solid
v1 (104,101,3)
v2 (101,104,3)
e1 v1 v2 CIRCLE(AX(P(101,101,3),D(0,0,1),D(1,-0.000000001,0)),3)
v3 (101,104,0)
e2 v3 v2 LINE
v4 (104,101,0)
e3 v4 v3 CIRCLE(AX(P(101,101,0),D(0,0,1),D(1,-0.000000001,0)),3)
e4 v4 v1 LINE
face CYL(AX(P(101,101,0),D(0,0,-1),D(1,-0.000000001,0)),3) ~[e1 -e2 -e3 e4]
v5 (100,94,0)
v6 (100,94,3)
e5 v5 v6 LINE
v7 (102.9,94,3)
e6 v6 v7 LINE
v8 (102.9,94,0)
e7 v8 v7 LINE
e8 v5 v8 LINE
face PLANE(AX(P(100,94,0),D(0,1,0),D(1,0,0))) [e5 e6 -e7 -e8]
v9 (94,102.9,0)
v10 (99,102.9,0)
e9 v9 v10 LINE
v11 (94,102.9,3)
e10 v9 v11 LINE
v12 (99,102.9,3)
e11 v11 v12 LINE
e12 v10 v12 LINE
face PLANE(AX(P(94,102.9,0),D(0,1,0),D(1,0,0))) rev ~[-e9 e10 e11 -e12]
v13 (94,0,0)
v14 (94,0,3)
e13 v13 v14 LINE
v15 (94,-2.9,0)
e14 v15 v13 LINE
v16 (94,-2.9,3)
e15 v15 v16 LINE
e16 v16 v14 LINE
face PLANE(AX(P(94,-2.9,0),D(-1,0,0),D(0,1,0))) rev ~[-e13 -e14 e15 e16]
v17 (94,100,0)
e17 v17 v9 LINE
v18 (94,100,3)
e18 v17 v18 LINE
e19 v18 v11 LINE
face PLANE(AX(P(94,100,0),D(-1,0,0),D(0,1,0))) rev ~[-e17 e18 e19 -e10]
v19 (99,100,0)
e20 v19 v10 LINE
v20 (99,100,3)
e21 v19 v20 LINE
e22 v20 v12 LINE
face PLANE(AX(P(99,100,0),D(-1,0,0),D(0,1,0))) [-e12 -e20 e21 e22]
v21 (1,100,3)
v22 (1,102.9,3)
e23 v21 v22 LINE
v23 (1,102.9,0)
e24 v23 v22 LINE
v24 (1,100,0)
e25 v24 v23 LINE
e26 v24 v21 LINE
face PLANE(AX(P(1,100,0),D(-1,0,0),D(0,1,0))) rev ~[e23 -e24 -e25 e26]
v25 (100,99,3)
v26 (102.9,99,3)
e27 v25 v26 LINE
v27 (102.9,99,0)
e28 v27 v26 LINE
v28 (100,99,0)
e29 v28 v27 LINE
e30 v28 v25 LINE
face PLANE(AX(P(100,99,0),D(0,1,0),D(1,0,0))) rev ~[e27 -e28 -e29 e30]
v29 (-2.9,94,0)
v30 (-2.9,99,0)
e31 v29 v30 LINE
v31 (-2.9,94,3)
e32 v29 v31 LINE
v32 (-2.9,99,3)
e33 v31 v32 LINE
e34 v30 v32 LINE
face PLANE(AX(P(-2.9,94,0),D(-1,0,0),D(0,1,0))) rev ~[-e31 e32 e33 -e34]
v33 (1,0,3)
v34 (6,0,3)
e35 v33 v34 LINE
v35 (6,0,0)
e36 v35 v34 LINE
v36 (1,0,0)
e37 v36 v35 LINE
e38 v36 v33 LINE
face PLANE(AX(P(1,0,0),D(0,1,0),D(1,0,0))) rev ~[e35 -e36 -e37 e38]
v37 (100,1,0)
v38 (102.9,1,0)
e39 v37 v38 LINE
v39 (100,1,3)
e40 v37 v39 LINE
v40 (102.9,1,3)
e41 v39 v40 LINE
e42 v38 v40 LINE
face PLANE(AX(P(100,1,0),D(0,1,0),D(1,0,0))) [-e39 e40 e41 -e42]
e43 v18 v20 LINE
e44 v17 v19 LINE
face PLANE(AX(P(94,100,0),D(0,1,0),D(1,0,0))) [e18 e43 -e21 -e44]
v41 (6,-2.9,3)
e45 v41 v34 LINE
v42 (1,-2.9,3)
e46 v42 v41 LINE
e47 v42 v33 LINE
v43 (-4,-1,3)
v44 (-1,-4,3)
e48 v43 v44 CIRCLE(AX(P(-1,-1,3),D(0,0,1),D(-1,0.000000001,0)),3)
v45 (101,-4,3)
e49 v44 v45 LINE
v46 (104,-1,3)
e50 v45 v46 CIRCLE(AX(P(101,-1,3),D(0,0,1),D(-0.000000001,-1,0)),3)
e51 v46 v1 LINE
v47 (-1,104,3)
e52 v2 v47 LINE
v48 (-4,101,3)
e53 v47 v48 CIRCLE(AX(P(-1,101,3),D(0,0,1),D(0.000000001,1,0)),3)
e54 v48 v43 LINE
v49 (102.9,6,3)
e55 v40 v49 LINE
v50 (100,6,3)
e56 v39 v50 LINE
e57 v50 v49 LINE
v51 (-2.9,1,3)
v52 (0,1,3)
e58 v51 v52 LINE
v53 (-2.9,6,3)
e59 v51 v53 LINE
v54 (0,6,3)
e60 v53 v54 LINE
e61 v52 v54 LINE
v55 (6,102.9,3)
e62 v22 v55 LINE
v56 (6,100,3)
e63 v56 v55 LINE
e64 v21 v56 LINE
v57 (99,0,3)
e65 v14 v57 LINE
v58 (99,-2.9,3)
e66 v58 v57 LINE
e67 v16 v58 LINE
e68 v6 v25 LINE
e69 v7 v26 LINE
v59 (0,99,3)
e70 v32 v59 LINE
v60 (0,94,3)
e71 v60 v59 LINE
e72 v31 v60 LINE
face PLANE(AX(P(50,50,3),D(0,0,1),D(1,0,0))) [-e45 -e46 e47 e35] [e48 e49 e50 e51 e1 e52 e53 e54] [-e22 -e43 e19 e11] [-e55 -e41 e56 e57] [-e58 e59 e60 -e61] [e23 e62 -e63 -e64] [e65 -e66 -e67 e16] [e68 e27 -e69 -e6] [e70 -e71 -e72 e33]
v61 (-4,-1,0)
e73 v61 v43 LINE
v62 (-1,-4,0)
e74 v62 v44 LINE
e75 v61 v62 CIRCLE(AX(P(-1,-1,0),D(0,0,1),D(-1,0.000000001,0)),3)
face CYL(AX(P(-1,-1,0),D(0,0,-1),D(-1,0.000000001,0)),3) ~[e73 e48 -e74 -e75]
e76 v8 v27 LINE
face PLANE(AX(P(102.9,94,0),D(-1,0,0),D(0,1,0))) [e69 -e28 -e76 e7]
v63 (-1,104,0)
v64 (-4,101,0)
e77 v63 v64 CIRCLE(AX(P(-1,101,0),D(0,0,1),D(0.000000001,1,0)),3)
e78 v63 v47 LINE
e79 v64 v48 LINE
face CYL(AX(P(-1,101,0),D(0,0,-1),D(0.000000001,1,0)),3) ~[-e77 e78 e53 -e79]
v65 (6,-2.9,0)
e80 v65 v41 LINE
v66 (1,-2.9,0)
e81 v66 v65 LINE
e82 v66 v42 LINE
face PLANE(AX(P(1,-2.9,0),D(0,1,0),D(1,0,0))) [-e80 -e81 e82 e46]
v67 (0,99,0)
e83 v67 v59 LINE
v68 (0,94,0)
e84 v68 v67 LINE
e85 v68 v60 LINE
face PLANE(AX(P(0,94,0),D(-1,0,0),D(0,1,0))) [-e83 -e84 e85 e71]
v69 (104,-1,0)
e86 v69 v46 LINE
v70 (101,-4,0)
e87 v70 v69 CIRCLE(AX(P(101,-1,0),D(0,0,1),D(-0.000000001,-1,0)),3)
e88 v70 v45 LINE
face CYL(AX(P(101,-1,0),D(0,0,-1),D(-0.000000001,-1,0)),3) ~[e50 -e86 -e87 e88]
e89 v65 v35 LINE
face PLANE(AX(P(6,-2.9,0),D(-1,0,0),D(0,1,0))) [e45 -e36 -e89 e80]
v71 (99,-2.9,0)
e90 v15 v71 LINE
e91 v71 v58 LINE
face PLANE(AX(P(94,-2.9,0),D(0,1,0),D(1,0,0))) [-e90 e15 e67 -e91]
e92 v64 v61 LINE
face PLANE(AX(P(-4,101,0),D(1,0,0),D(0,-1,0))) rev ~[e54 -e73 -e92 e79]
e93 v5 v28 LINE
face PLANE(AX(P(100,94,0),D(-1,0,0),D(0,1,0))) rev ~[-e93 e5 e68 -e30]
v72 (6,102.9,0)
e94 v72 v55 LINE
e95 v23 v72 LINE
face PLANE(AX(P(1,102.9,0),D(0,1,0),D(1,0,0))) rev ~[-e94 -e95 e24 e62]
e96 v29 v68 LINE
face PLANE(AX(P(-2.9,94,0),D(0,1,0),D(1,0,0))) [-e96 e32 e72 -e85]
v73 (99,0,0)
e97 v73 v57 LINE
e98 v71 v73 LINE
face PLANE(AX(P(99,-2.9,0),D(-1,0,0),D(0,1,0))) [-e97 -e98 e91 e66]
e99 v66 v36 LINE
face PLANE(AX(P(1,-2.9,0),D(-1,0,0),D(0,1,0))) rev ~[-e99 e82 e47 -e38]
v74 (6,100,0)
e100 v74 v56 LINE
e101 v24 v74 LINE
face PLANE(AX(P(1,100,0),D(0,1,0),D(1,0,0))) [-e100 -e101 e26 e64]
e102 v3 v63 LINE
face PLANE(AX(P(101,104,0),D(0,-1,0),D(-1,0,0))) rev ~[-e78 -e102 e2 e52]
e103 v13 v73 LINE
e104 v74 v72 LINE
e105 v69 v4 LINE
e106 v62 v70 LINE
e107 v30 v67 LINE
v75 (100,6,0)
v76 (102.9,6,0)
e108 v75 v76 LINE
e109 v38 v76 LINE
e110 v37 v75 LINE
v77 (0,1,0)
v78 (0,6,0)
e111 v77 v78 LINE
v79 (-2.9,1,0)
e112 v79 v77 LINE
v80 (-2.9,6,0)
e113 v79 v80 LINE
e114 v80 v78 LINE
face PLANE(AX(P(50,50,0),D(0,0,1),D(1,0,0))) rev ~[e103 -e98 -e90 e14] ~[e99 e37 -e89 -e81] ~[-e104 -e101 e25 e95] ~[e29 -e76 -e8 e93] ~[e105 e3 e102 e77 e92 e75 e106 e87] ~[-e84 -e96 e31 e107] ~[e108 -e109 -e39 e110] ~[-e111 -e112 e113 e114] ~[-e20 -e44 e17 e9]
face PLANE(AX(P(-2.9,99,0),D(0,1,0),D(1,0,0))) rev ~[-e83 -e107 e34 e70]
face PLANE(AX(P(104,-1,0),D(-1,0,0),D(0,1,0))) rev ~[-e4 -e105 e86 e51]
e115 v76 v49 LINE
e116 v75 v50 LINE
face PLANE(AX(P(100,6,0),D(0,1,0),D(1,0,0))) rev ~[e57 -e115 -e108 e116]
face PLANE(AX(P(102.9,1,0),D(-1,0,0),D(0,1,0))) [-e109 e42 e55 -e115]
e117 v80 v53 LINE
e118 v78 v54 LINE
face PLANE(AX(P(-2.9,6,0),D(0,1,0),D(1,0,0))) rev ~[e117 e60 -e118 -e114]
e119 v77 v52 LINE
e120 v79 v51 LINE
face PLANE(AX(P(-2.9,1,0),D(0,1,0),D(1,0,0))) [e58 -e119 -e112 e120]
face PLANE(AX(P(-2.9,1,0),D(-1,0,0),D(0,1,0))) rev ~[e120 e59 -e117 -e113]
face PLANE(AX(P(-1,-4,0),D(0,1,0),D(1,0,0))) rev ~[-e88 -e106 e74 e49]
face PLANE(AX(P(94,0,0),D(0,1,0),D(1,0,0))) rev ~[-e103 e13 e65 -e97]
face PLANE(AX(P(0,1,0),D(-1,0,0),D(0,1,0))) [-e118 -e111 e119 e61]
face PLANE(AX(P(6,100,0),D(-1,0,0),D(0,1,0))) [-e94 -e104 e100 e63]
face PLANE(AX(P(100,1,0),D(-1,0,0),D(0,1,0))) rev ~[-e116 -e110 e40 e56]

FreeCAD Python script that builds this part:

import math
import FreeCAD as App
import Part
import Sketcher
from FreeCAD import Vector


def add_polygon(sketch, points):
    """Adds a closed chain of lines whose ends are joined by coincident constraints."""
    first, n = sketch.GeometryCount, len(points)
    for a, b in zip(points, points[1:] + points[:1]):
        sketch.addGeometry(Part.LineSegment(App.Vector(*a, 0), App.Vector(*b, 0)), False)
    for i in range(n):
        sketch.addConstraint(Sketcher.Constraint("Coincident", first + i, 2, first + (i + 1) % n, 1))

doc = App.newDocument("Part")
params = doc.addObject("Spreadsheet::Sheet", "Params")
for row, (alias, value) in enumerate([
    ("sketch1_radius", "3 mm"),
    ("sketch1_width", "102 mm"),
    ("sketch1_width2", "5 mm"),
    ("sketch1_width3", "2.9 mm"),
    ("pad1_length", "3 mm"),
], start=1):
    params.set(f"A{row}", alias)
    params.set(f"B{row}", "=" + value)
    params.setAlias(f"B{row}", alias)

body = doc.addObject("PartDesign::Body", "Body")

sketch1 = body.newObject("Sketcher::SketchObject", "Sketch")
sketch1.AttachmentSupport = (doc.getObject("XY_Plane"), [""])
sketch1.MapMode = "FlatFace"
sketch1.addGeometry(Part.LineSegment(Vector(101, 104, 0), Vector(-1, 104, 0)), False)
sketch1.addGeometry(Part.ArcOfCircle(Part.Circle(Vector(-1, 101, 0), Vector(0, 0, 1), 3), math.radians(90), math.radians(180)), False)
sketch1.addGeometry(Part.LineSegment(Vector(-4, 101, 0), Vector(-4, -1, 0)), False)
sketch1.addGeometry(Part.ArcOfCircle(Part.Circle(Vector(-1, -1, 0), Vector(0, 0, 1), 3), math.radians(180), math.radians(270)), False)
sketch1.addGeometry(Part.LineSegment(Vector(-1, -4, 0), Vector(101, -4, 0)), False)
sketch1.addGeometry(Part.ArcOfCircle(Part.Circle(Vector(101, -1, 0), Vector(0, 0, 1), 3), math.radians(-90), math.radians(0)), False)
sketch1.addGeometry(Part.LineSegment(Vector(104, -1, 0), Vector(104, 101, 0)), False)
sketch1.addGeometry(Part.ArcOfCircle(Part.Circle(Vector(101, 101, 0), Vector(0, 0, 1), 3), math.radians(0), math.radians(90)), False)
add_polygon(sketch1, [(6, -2.9), (1, -2.9), (1, 0), (6, 0)])
add_polygon(sketch1, [(0, 1), (-2.9, 1), (-2.9, 6), (0, 6)])
add_polygon(sketch1, [(99, -2.9), (94, -2.9), (94, 0), (99, 0)])
add_polygon(sketch1, [(102.9, 1), (100, 1), (100, 6), (102.9, 6)])
add_polygon(sketch1, [(0, 94), (-2.9, 94), (-2.9, 99), (0, 99)])
add_polygon(sketch1, [(6, 100), (1, 100), (1, 102.9), (6, 102.9)])
add_polygon(sketch1, [(102.9, 94), (100, 94), (100, 99), (102.9, 99)])
add_polygon(sketch1, [(99, 100), (94, 100), (94, 102.9), (99, 102.9)])
sketch1.addConstraint([
    Sketcher.Constraint("Tangent", 0, 2, 1, 1),
    Sketcher.Constraint("Tangent", 1, 2, 2, 1),
    Sketcher.Constraint("Tangent", 2, 2, 3, 1),
    Sketcher.Constraint("Tangent", 3, 2, 4, 1),
    Sketcher.Constraint("Tangent", 4, 2, 5, 1),
    Sketcher.Constraint("Tangent", 5, 2, 6, 1),
    Sketcher.Constraint("Tangent", 6, 2, 7, 1),
    Sketcher.Constraint("Tangent", 7, 2, 0, 1),
    Sketcher.Constraint("Horizontal", 0),
    Sketcher.Constraint("Vertical", 2),
    Sketcher.Constraint("Horizontal", 4),
    Sketcher.Constraint("Vertical", 6),
    Sketcher.Constraint("Horizontal", 8),
    Sketcher.Constraint("Vertical", 9),
    Sketcher.Constraint("Horizontal", 10),
    Sketcher.Constraint("Vertical", 11),
    Sketcher.Constraint("Horizontal", 12),
    Sketcher.Constraint("Vertical", 13),
    Sketcher.Constraint("Horizontal", 14),
    Sketcher.Constraint("Vertical", 15),
    Sketcher.Constraint("Horizontal", 16),
    Sketcher.Constraint("Vertical", 17),
    Sketcher.Constraint("Horizontal", 18),
    Sketcher.Constraint("Vertical", 19),
    Sketcher.Constraint("Horizontal", 20),
    Sketcher.Constraint("Vertical", 21),
    Sketcher.Constraint("Horizontal", 22),
    Sketcher.Constraint("Vertical", 23),
    Sketcher.Constraint("Horizontal", 24),
    Sketcher.Constraint("Vertical", 25),
    Sketcher.Constraint("Horizontal", 26),
    Sketcher.Constraint("Vertical", 27),
    Sketcher.Constraint("Horizontal", 28),
    Sketcher.Constraint("Vertical", 29),
    Sketcher.Constraint("Horizontal", 30),
    Sketcher.Constraint("Vertical", 31),
    Sketcher.Constraint("Horizontal", 32),
    Sketcher.Constraint("Vertical", 33),
    Sketcher.Constraint("Horizontal", 34),
    Sketcher.Constraint("Vertical", 35),
    Sketcher.Constraint("Horizontal", 36),
    Sketcher.Constraint("Vertical", 37),
    Sketcher.Constraint("Horizontal", 38),
    Sketcher.Constraint("Vertical", 39),
    Sketcher.Constraint("Equal", 1, 3),
    Sketcher.Constraint("Equal", 3, 5),
    Sketcher.Constraint("Equal", 5, 7),
    Sketcher.Constraint("PointOnObject", 9, 2, -1),
    Sketcher.Constraint("PointOnObject", 14, 2, -2),
    Sketcher.Constraint("PointOnObject", 17, 2, -1),
    Sketcher.Constraint("PointOnObject", 26, 2, -2),
    Sketcher.Constraint("Horizontal", 11, 2, 16, 2),
    Sketcher.Constraint("Horizontal", 15, 2, 20, 2),
    Sketcher.Constraint("Horizontal", 14, 2, 21, 2),
    Sketcher.Constraint("Horizontal", 27, 2, 32, 2),
    Sketcher.Constraint("Horizontal", 26, 2, 33, 2),
    Sketcher.Constraint("Horizontal", 31, 2, 36, 2),
    Sketcher.Constraint("Horizontal", 30, 2, 37, 2),
    Sketcher.Constraint("Vertical", 13, 2, 24, 2),
    Sketcher.Constraint("Vertical", 9, 2, 28, 2),
    Sketcher.Constraint("Vertical", 11, 2, 30, 2),
    Sketcher.Constraint("Vertical", 21, 2, 32, 2),
    Sketcher.Constraint("Vertical", 23, 2, 34, 2),
    Sketcher.Constraint("Vertical", 17, 2, 36, 2),
    Sketcher.Constraint("Vertical", 19, 2, 38, 2),
    Sketcher.Constraint("Equal", 10, 16),
    Sketcher.Constraint("Equal", 14, 20),
    Sketcher.Constraint("Equal", 4, 2),
    Sketcher.Constraint("Equal", 34, 9),
    Sketcher.Constraint("Equal", 38, 13),
    Sketcher.Constraint("Equal", 23, 25),
    Sketcher.Constraint("Equal", 19, 29),
    Sketcher.Constraint("Radius", 1, 3.0),
    Sketcher.Constraint("DistanceX", 0, 2, 0, 1, 102.0),
    Sketcher.Constraint("DistanceX", 8, 2, 8, 1, 5.0),
    Sketcher.Constraint("DistanceX", 12, 2, 12, 1, 2.9),
    Sketcher.Constraint("DistanceX", 1, 3, -1, 1, 1.0),
    Sketcher.Constraint("DistanceY", -1, 1, 1, 3, 101.0),
    Sketcher.Constraint("DistanceX", -1, 1, 8, 2, 1.0),
    Sketcher.Constraint("DistanceY", -1, 1, 12, 2, 1.0),
    Sketcher.Constraint("DistanceX", -1, 1, 16, 2, 94.0),
    Sketcher.Constraint("DistanceX", -1, 1, 20, 2, 100.0),
    Sketcher.Constraint("DistanceY", -1, 1, 24, 2, 94.0),
    Sketcher.Constraint("DistanceY", -1, 1, 28, 2, 100.0),
])
sketch1.setExpression("Constraints[104]", "Params.sketch1_radius")
sketch1.setExpression("Constraints[105]", "Params.sketch1_width")
sketch1.setExpression("Constraints[106]", "Params.sketch1_width2")
sketch1.setExpression("Constraints[107]", "Params.sketch1_width3")
pad1 = body.newObject("PartDesign::Pad", "Pad")
pad1.Profile = sketch1
pad1.setExpression("Length", "Params.pad1_length")

doc.recompute()
